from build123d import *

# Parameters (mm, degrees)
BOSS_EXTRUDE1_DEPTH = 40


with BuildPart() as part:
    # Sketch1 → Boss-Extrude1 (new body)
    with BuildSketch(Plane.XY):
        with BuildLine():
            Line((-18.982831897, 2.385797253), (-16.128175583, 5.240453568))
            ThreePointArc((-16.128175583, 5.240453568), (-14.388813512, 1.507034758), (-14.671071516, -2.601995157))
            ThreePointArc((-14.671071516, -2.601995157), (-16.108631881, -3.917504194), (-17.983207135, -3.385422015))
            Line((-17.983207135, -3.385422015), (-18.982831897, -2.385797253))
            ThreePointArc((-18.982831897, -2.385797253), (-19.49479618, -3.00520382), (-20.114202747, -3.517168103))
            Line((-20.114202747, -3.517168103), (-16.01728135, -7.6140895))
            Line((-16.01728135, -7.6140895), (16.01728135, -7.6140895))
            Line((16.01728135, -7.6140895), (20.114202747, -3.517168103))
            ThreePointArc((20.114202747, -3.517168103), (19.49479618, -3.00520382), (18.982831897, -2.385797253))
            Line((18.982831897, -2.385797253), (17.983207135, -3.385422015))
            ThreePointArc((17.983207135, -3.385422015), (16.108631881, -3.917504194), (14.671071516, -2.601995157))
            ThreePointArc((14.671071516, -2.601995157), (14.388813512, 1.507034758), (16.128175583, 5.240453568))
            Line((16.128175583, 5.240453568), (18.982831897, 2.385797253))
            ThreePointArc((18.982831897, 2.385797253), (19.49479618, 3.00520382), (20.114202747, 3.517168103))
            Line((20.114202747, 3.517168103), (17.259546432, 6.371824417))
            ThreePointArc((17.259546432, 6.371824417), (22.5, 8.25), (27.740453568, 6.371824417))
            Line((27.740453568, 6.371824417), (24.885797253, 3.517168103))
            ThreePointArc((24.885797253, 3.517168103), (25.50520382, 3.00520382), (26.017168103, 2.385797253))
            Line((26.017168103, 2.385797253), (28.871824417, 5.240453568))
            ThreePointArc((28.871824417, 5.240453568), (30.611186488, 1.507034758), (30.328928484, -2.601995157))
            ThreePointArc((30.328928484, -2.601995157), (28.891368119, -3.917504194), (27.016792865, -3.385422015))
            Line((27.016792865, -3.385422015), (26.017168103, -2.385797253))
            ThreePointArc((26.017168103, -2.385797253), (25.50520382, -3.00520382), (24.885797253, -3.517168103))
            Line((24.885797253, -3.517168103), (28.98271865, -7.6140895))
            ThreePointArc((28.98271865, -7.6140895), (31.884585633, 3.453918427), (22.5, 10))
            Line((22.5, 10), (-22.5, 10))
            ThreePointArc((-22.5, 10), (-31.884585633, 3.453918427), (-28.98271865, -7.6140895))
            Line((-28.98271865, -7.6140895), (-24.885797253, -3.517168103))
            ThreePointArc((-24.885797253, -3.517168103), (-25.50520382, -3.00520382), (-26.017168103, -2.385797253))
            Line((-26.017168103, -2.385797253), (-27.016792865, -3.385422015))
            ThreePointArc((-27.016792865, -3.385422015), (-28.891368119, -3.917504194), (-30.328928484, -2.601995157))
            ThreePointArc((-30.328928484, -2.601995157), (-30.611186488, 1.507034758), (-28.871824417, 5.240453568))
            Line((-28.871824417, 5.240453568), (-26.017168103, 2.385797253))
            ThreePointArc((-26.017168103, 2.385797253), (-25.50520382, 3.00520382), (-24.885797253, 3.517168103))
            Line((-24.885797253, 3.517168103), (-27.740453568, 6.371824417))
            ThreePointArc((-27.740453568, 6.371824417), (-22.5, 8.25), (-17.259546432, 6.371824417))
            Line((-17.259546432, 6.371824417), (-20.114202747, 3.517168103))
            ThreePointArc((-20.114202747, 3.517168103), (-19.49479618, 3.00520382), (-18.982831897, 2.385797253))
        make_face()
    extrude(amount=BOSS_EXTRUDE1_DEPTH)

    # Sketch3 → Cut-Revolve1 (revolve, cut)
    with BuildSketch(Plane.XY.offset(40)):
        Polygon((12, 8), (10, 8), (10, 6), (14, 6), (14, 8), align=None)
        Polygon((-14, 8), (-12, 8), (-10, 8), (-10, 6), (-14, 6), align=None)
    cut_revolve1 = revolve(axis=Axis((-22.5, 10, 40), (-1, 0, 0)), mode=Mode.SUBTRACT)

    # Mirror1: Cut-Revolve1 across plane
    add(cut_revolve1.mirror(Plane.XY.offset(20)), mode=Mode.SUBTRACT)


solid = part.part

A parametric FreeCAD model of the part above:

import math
import FreeCAD as App
import Part
import Sketcher
Q = App.Units.Quantity

doc = App.newDocument("Part")
body = doc.addObject("PartDesign::Body", "Body")

sketch1 = body.newObject("Sketcher::SketchObject", "Sketch")
sketch1.AttachmentSupport = (doc.getObject("XY_Plane"), [""])
sketch1.MapMode = "FlatFace"
sketch1.addGeometry([
    Part.LineSegment(App.Vector(-18.982832, 2.385797, 0), App.Vector(-16.128176, 5.240454, 0)),
    Part.ArcOfCircle(Part.Circle(App.Vector(-22.5, 0, 0), App.Vector(0, 0, 1), 8.25), math.radians(-18.384562), math.radians(39.435301)),
    Part.ArcOfCircle(Part.Circle(App.Vector(-16.568994, -1.971208, 0), App.Vector(0, 0, 1), 2), math.radians(-135), math.radians(-18.384562)),
    Part.LineSegment(App.Vector(-17.983207, -3.385422, 0), App.Vector(-18.982832, -2.385797, 0)),
    Part.ArcOfCircle(Part.Circle(App.Vector(-22.5, 0, 0), App.Vector(0, 0, 1), 4.25), math.radians(-55.849816), math.radians(-34.150184)),
    Part.LineSegment(App.Vector(-20.114203, -3.517168, 0), App.Vector(-16.017281, -7.61409, 0)),
    Part.LineSegment(App.Vector(-16.017281, -7.61409, 0), App.Vector(16.017281, -7.61409, 0)),
    Part.LineSegment(App.Vector(16.017281, -7.61409, 0), App.Vector(20.114203, -3.517168, 0)),
    Part.ArcOfCircle(Part.Circle(App.Vector(22.5, 0, 0), App.Vector(0, 0, 1), 4.25), math.radians(-145.849816), math.radians(-124.150184)),
    Part.LineSegment(App.Vector(18.982832, -2.385797, 0), App.Vector(17.983207, -3.385422, 0)),
    Part.ArcOfCircle(Part.Circle(App.Vector(16.568994, -1.971208, 0), App.Vector(0, 0, 1), 2), math.radians(-161.615438), math.radians(-45)),
    Part.ArcOfCircle(Part.Circle(App.Vector(22.5, 0, 0), App.Vector(0, 0, 1), 8.25), math.radians(140.564699), math.radians(198.384562)),
    Part.LineSegment(App.Vector(16.128176, 5.240454, 0), App.Vector(18.982832, 2.385797, 0)),
    Part.ArcOfCircle(Part.Circle(App.Vector(22.5, 0, 0), App.Vector(0, 0, 1), 4.25), math.radians(124.150184), math.radians(145.849816)),
    Part.LineSegment(App.Vector(20.114203, 3.517168, 0), App.Vector(17.259546, 6.371824, 0)),
    Part.ArcOfCircle(Part.Circle(App.Vector(22.5, 0, 0), App.Vector(0, 0, 1), 8.25), math.radians(50.564699), math.radians(129.435301)),
    Part.LineSegment(App.Vector(27.740454, 6.371824, 0), App.Vector(24.885797, 3.517168, 0)),
    Part.ArcOfCircle(Part.Circle(App.Vector(22.5, 0, 0), App.Vector(0, 0, 1), 4.25), math.radians(34.150184), math.radians(55.849816)),
    Part.LineSegment(App.Vector(26.017168, 2.385797, 0), App.Vector(28.871824, 5.240454, 0)),
    Part.ArcOfCircle(Part.Circle(App.Vector(22.5, 0, 0), App.Vector(0, 0, 1), 8.25), math.radians(-18.384562), math.radians(39.435301)),
    Part.ArcOfCircle(Part.Circle(App.Vector(28.431006, -1.971208, 0), App.Vector(0, 0, 1), 2), math.radians(-135), math.radians(-18.384562)),
    Part.LineSegment(App.Vector(27.016793, -3.385422, 0), App.Vector(26.017168, -2.385797, 0)),
    Part.ArcOfCircle(Part.Circle(App.Vector(22.5, 0, 0), App.Vector(0, 0, 1), 4.25), math.radians(-55.849816), math.radians(-34.150184)),
    Part.LineSegment(App.Vector(24.885797, -3.517168, 0), App.Vector(28.982719, -7.61409, 0)),
    Part.ArcOfCircle(Part.Circle(App.Vector(22.5, 0, 0), App.Vector(0, 0, 1), 10), math.radians(-49.588566), math.radians(90)),
    Part.LineSegment(App.Vector(22.5, 10, 0), App.Vector(-22.5, 10, 0)),
    Part.ArcOfCircle(Part.Circle(App.Vector(-22.5, 0, 0), App.Vector(0, 0, 1), 10), math.radians(90), math.radians(229.588566)),
    Part.LineSegment(App.Vector(-28.982719, -7.61409, 0), App.Vector(-24.885797, -3.517168, 0)),
    Part.ArcOfCircle(Part.Circle(App.Vector(-22.5, 0, 0), App.Vector(0, 0, 1), 4.25), math.radians(-145.849816), math.radians(-124.150184)),
    Part.LineSegment(App.Vector(-26.017168, -2.385797, 0), App.Vector(-27.016793, -3.385422, 0)),
    Part.ArcOfCircle(Part.Circle(App.Vector(-28.431006, -1.971208, 0), App.Vector(0, 0, 1), 2), math.radians(-161.615438), math.radians(-45)),
    Part.ArcOfCircle(Part.Circle(App.Vector(-22.5, 0, 0), App.Vector(0, 0, 1), 8.25), math.radians(140.564699), math.radians(198.384562)),
    Part.LineSegment(App.Vector(-28.871824, 5.240454, 0), App.Vector(-26.017168, 2.385797, 0)),
    Part.ArcOfCircle(Part.Circle(App.Vector(-22.5, 0, 0), App.Vector(0, 0, 1), 4.25), math.radians(124.150184), math.radians(145.849816)),
    Part.LineSegment(App.Vector(-24.885797, 3.517168, 0), App.Vector(-27.740454, 6.371824, 0)),
    Part.ArcOfCircle(Part.Circle(App.Vector(-22.5, 0, 0), App.Vector(0, 0, 1), 8.25), math.radians(50.564699), math.radians(129.435301)),
    Part.LineSegment(App.Vector(-17.259546, 6.371824, 0), App.Vector(-20.114203, 3.517168, 0)),
    Part.ArcOfCircle(Part.Circle(App.Vector(-22.5, 0, 0), App.Vector(0, 0, 1), 4.25), math.radians(34.150184), math.radians(55.849816)),
], False)
sketch1.addConstraint([
    Sketcher.Constraint("Coincident", 0, 2, 1, 2),
    Sketcher.Constraint("Tangent", 1, 1, 2, 2),
    Sketcher.Constraint("Tangent", 2, 1, 3, 1),
    Sketcher.Constraint("Coincident", 3, 2, 4, 2),
    Sketcher.Constraint("Coincident", 4, 1, 5, 1),
    Sketcher.Constraint("Coincident", 5, 2, 6, 1),
    Sketcher.Constraint("Coincident", 6, 2, 7, 1),
    Sketcher.Constraint("Coincident", 7, 2, 8, 2),
    Sketcher.Constraint("Coincident", 8, 1, 9, 1),
    Sketcher.Constraint("Tangent", 9, 2, 10, 2),
    Sketcher.Constraint("Tangent", 10, 1, 11, 2),
    Sketcher.Constraint("Coincident", 11, 1, 12, 1),
    Sketcher.Constraint("Coincident", 12, 2, 13, 2),
    Sketcher.Constraint("Coincident", 13, 1, 14, 1),
    Sketcher.Constraint("Coincident", 14, 2, 15, 2),
    Sketcher.Constraint("Coincident", 15, 1, 16, 1),
    Sketcher.Constraint("Coincident", 16, 2, 17, 2),
    Sketcher.Constraint("Coincident", 17, 1, 18, 1),
    Sketcher.Constraint("Coincident", 18, 2, 19, 2),
    Sketcher.Constraint("Tangent", 19, 1, 20, 2),
    Sketcher.Constraint("Tangent", 20, 1, 21, 1),
    Sketcher.Constraint("Coincident", 21, 2, 22, 2),
    Sketcher.Constraint("Coincident", 22, 1, 23, 1),
    Sketcher.Constraint("Coincident", 23, 2, 24, 1),
    Sketcher.Constraint("Tangent", 24, 2, 25, 1),
    Sketcher.Constraint("Tangent", 25, 2, 26, 1),
    Sketcher.Constraint("Coincident", 26, 2, 27, 1),
    Sketcher.Constraint("Coincident", 27, 2, 28, 2),
    Sketcher.Constraint("Coincident", 28, 1, 29, 1),
    Sketcher.Constraint("Tangent", 29, 2, 30, 2),
    Sketcher.Constraint("Tangent", 30, 1, 31, 2),
    Sketcher.Constraint("Coincident", 31, 1, 32, 1),
    Sketcher.Constraint("Coincident", 32, 2, 33, 2),
    Sketcher.Constraint("Coincident", 33, 1, 34, 1),
    Sketcher.Constraint("Coincident", 34, 2, 35, 2),
    Sketcher.Constraint("Coincident", 35, 1, 36, 1),
    Sketcher.Constraint("Coincident", 36, 2, 37, 2),
    Sketcher.Constraint("Coincident", 37, 1, 0, 1),
    Sketcher.Constraint("Horizontal", 6),
    Sketcher.Constraint("Horizontal", 25),
    Sketcher.Constraint("Coincident", 4, 3, 1, 3),
    Sketcher.Constraint("Coincident", 11, 3, 8, 3),
    Sketcher.Constraint("Coincident", 13, 3, 8, 3),
    Sketcher.Constraint("Coincident", 15, 3, 8, 3),
    Sketcher.Constraint("Coincident", 17, 3, 8, 3),
    Sketcher.Constraint("Coincident", 19, 3, 8, 3),
    Sketcher.Constraint("Coincident", 22, 3, 8, 3),
    Sketcher.Constraint("Coincident", 24, 3, 8, 3),
    Sketcher.Constraint("Coincident", 26, 3, 1, 3),
    Sketcher.Constraint("Coincident", 28, 3, 1, 3),
    Sketcher.Constraint("Coincident", 31, 3, 1, 3),
    Sketcher.Constraint("Coincident", 33, 3, 1, 3),
    Sketcher.Constraint("Coincident", 35, 3, 1, 3),
    Sketcher.Constraint("Coincident", 37, 3, 1, 3),
    Sketcher.Constraint("Equal", 4, 8),
    Sketcher.Constraint("Equal", 2, 10),
    Sketcher.Constraint("Equal", 1, 11),
    Sketcher.Constraint("Equal", 8, 13),
    Sketcher.Constraint("Equal", 11, 15),
    Sketcher.Constraint("Equal", 13, 17),
    Sketcher.Constraint("Equal", 15, 19),
    Sketcher.Constraint("Equal", 10, 20),
    Sketcher.Constraint("Equal", 17, 22),
    Sketcher.Constraint("Equal", 24, 26),
    Sketcher.Constraint("Equal", 22, 28),
    Sketcher.Constraint("Equal", 20, 30),
    Sketcher.Constraint("Equal", 19, 31),
    Sketcher.Constraint("Equal", 28, 33),
    Sketcher.Constraint("Equal", 31, 35),
    Sketcher.Constraint("Equal", 33, 37),
    Sketcher.Constraint("Symmetric", 1, 3, 8, 3, -1, 1),
    Sketcher.Constraint("Symmetric", 2, 1, 9, 2, -2),
    Sketcher.Constraint("Symmetric", 20, 1, 29, 2, -2),
    Sketcher.Constraint("Perpendicular", 0, 3),
    Sketcher.Constraint("Parallel", 3, 5),
    Sketcher.Constraint("Perpendicular", 5, 7),
    Sketcher.Constraint("Parallel", 7, 9),
    Sketcher.Constraint("Perpendicular", 9, 12),
    Sketcher.Constraint("Parallel", 12, 14),
    Sketcher.Constraint("Perpendicular", 14, 16),
    Sketcher.Constraint("Parallel", 16, 18),
    Sketcher.Constraint("Perpendicular", 18, 21),
    Sketcher.Constraint("Parallel", 21, 23),
    Sketcher.Constraint("Perpendicular", 23, 27),
    Sketcher.Constraint("Perpendicular", 29, 32),
    Sketcher.Constraint("Parallel", 32, 34),
    Sketcher.Constraint("Perpendicular", 34, 36),
    Sketcher.Constraint("Horizontal", 10, 3, 20, 3),
    Sketcher.Constraint("Horizontal", 4, 1, 7, 2),
    Sketcher.Constraint("Horizontal", 0, 2, 11, 1),
    Sketcher.Constraint("Horizontal", 14, 2, 15, 1),
    Sketcher.Constraint("Horizontal", 12, 2, 17, 1),
    Sketcher.Constraint("Horizontal", 7, 2, 22, 1),
    Sketcher.Constraint("Horizontal", 6, 2, 23, 2),
    Sketcher.Constraint("Horizontal", 23, 2, 26, 2),
    Sketcher.Constraint("Horizontal", 18, 2, 31, 1),
    Sketcher.Constraint("Horizontal", 16, 2, 33, 1),
    Sketcher.Constraint("Horizontal", 34, 2, 35, 1),
    Sketcher.Constraint("Vertical", 8, 1, 12, 2),
    Sketcher.Constraint("Vertical", 7, 2, 13, 1),
    Sketcher.Constraint("Equal", 12, 14),
    Sketcher.Constraint("Radius", 2, Q("2 mm")),
    Sketcher.Constraint("Radius", 24, Q("10 mm")),
    Sketcher.Constraint("DistanceX", 25, 2, 25, 1, Q("45 mm")),
    Sketcher.Constraint("Radius", 1, Q("8.25 mm")),
    Sketcher.Constraint("Radius", 4, Q("4.25 mm")),
    Sketcher.Constraint("Distance", 5, Q("5.793922 mm")),
])
pad1 = body.newObject("PartDesign::Pad", "Pad")
pad1.Profile = sketch1
pad1.Length = 40

sketch2 = body.newObject("Sketcher::SketchObject", "Sketch001")
sketch2.AttachmentSupport = (doc.getObject("XY_Plane"), [""])
sketch2.MapMode = "FlatFace"
sketch2.AttachmentOffset = App.Placement(App.Vector(0, 0, 40), App.Rotation())
sketch2.addGeometry([
    Part.LineSegment(App.Vector(10, 8, 0), App.Vector(10, 6, 0)),
    Part.LineSegment(App.Vector(10, 6, 0), App.Vector(14, 6, 0)),
    Part.LineSegment(App.Vector(14, 6, 0), App.Vector(14, 8, 0)),
    Part.LineSegment(App.Vector(14, 8, 0), App.Vector(10, 8, 0)),
    Part.LineSegment(App.Vector(-10, 8, 0), App.Vector(-14, 8, 0)),
    Part.LineSegment(App.Vector(-14, 8, 0), App.Vector(-14, 6, 0)),
    Part.LineSegment(App.Vector(-14, 6, 0), App.Vector(-10, 6, 0)),
    Part.LineSegment(App.Vector(-10, 6, 0), App.Vector(-10, 8, 0)),
], False)
sketch2.addGeometry(Part.LineSegment(App.Vector(14, 10, 0), App.Vector(-14, 10, 0)), True)
sketch2.addConstraint([
    Sketcher.Constraint("Coincident", 0, 2, 1, 1),
    Sketcher.Constraint("Coincident", 1, 2, 2, 1),
    Sketcher.Constraint("Coincident", 2, 2, 3, 1),
    Sketcher.Constraint("Coincident", 3, 2, 0, 1),
    Sketcher.Constraint("Coincident", 4, 2, 5, 1),
    Sketcher.Constraint("Coincident", 5, 2, 6, 1),
    Sketcher.Constraint("Coincident", 6, 2, 7, 1),
    Sketcher.Constraint("Coincident", 7, 2, 4, 1),
    Sketcher.Constraint("Vertical", 0),
    Sketcher.Constraint("Horizontal", 1),
    Sketcher.Constraint("Vertical", 2),
    Sketcher.Constraint("Horizontal", 3),
    Sketcher.Constraint("Horizontal", 4),
    Sketcher.Constraint("Vertical", 5),
    Sketcher.Constraint("Horizontal", 6),
    Sketcher.Constraint("Vertical", 7),
    Sketcher.Constraint("Horizontal", 8),
    Sketcher.Constraint("Symmetric", 2, 2, 4, 2, -2),
    Sketcher.Constraint("Symmetric", 0, 2, 6, 2, -2),
    Sketcher.Constraint("Vertical", 2, 2, 8, 1),
    Sketcher.Constraint("Vertical", 5, 2, 8, 2),
    Sketcher.Constraint("DistanceX", 1, 1, 1, 2, Q("4 mm")),
    Sketcher.Constraint("DistanceX", 8, 2, 8, 1, Q("28 mm")),
    Sketcher.Constraint("DistanceY", 0, 2, 0, 1, Q("2 mm")),
    Sketcher.Constraint("DistanceY", -1, 1, 0, 2, Q("6 mm")),
    Sketcher.Constraint("DistanceY", -1, 1, 8, 1, Q("10 mm")),
])
groove = body.newObject("PartDesign::Groove", "Groove")
groove.Profile = sketch2
groove.ReferenceAxis = (sketch2, ["Axis0"])
groove.Angle = 360
doc.recompute()

datumplane = body.newObject("PartDesign::Plane", "DatumPlane")
datumplane.AttachmentSupport = (doc.getObject("XY_Plane"), [""])
datumplane.MapMode = "FlatFace"
datumplane.AttachmentOffset = App.Placement(App.Vector(0, 0, 20), App.Rotation())
mirrored = body.newObject("PartDesign::Mirrored", "Mirrored")
mirrored.Originals = [groove]
mirrored.MirrorPlane = (datumplane, [""])
body.Tip = mirrored

doc.recompute()
